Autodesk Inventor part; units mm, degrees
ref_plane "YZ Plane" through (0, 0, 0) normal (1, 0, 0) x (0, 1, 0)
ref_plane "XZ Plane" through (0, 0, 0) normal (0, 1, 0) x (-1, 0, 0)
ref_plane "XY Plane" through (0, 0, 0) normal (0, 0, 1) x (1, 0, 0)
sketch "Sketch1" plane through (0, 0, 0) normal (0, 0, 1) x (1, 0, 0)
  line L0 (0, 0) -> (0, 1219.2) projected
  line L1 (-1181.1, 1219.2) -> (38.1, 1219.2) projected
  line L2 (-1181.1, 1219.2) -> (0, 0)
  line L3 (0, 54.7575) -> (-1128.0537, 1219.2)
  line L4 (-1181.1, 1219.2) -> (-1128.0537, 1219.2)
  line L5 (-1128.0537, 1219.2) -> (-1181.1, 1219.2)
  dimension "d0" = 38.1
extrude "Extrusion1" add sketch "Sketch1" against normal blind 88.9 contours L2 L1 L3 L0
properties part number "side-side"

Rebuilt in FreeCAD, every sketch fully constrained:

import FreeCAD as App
import Part
import Sketcher
Q = App.Units.Quantity


def add_polygon(sketch, points):
    """Adds a closed chain of lines whose ends are joined by coincident constraints."""
    first, n = sketch.GeometryCount, len(points)
    for a, b in zip(points, points[1:] + points[:1]):
        sketch.addGeometry(Part.LineSegment(App.Vector(*a, 0), App.Vector(*b, 0)), False)
    for i in range(n):
        sketch.addConstraint(Sketcher.Constraint("Coincident", first + i, 2, first + (i + 1) % n, 1))

doc = App.newDocument("Part")
body = doc.addObject("PartDesign::Body", "Body")

# Sketch on XY plane
sketch1 = doc.addObject("Sketcher::SketchObject", "Sketch")
body.addObject(sketch1)
sketch1.AttachmentSupport = (doc.XY_Plane, [""])
sketch1.MapMode = "FlatFace"
add_polygon(sketch1, [(-1181, 1219), (0, 0), (0, 55), (-1128, 1219)])  # lines 0-3
sketch1.addConstraint([
    Sketcher.Constraint("Vertical", 1),
    Sketcher.Constraint("Horizontal", 3),
    Sketcher.Constraint("Coincident", 0, 2, -1, 1),
    Sketcher.Constraint("Parallel", 0, 2),
    Sketcher.Constraint("DistanceY", -1, 1, 2, 2, Q("48 in")),
    Sketcher.Constraint("DistanceX", 3, 2, -1, 1, Q("46.5 in")),
    Sketcher.Constraint("DistanceY", 1, 1, 1, 2, Q("2.1558 in")),
])
pad1 = doc.addObject("PartDesign::Pad", "Pad")
body.addObject(pad1)
pad1.Profile = sketch1
pad1.Length = Q("3.5 in")
pad1.Reversed = True

doc.recompute()
